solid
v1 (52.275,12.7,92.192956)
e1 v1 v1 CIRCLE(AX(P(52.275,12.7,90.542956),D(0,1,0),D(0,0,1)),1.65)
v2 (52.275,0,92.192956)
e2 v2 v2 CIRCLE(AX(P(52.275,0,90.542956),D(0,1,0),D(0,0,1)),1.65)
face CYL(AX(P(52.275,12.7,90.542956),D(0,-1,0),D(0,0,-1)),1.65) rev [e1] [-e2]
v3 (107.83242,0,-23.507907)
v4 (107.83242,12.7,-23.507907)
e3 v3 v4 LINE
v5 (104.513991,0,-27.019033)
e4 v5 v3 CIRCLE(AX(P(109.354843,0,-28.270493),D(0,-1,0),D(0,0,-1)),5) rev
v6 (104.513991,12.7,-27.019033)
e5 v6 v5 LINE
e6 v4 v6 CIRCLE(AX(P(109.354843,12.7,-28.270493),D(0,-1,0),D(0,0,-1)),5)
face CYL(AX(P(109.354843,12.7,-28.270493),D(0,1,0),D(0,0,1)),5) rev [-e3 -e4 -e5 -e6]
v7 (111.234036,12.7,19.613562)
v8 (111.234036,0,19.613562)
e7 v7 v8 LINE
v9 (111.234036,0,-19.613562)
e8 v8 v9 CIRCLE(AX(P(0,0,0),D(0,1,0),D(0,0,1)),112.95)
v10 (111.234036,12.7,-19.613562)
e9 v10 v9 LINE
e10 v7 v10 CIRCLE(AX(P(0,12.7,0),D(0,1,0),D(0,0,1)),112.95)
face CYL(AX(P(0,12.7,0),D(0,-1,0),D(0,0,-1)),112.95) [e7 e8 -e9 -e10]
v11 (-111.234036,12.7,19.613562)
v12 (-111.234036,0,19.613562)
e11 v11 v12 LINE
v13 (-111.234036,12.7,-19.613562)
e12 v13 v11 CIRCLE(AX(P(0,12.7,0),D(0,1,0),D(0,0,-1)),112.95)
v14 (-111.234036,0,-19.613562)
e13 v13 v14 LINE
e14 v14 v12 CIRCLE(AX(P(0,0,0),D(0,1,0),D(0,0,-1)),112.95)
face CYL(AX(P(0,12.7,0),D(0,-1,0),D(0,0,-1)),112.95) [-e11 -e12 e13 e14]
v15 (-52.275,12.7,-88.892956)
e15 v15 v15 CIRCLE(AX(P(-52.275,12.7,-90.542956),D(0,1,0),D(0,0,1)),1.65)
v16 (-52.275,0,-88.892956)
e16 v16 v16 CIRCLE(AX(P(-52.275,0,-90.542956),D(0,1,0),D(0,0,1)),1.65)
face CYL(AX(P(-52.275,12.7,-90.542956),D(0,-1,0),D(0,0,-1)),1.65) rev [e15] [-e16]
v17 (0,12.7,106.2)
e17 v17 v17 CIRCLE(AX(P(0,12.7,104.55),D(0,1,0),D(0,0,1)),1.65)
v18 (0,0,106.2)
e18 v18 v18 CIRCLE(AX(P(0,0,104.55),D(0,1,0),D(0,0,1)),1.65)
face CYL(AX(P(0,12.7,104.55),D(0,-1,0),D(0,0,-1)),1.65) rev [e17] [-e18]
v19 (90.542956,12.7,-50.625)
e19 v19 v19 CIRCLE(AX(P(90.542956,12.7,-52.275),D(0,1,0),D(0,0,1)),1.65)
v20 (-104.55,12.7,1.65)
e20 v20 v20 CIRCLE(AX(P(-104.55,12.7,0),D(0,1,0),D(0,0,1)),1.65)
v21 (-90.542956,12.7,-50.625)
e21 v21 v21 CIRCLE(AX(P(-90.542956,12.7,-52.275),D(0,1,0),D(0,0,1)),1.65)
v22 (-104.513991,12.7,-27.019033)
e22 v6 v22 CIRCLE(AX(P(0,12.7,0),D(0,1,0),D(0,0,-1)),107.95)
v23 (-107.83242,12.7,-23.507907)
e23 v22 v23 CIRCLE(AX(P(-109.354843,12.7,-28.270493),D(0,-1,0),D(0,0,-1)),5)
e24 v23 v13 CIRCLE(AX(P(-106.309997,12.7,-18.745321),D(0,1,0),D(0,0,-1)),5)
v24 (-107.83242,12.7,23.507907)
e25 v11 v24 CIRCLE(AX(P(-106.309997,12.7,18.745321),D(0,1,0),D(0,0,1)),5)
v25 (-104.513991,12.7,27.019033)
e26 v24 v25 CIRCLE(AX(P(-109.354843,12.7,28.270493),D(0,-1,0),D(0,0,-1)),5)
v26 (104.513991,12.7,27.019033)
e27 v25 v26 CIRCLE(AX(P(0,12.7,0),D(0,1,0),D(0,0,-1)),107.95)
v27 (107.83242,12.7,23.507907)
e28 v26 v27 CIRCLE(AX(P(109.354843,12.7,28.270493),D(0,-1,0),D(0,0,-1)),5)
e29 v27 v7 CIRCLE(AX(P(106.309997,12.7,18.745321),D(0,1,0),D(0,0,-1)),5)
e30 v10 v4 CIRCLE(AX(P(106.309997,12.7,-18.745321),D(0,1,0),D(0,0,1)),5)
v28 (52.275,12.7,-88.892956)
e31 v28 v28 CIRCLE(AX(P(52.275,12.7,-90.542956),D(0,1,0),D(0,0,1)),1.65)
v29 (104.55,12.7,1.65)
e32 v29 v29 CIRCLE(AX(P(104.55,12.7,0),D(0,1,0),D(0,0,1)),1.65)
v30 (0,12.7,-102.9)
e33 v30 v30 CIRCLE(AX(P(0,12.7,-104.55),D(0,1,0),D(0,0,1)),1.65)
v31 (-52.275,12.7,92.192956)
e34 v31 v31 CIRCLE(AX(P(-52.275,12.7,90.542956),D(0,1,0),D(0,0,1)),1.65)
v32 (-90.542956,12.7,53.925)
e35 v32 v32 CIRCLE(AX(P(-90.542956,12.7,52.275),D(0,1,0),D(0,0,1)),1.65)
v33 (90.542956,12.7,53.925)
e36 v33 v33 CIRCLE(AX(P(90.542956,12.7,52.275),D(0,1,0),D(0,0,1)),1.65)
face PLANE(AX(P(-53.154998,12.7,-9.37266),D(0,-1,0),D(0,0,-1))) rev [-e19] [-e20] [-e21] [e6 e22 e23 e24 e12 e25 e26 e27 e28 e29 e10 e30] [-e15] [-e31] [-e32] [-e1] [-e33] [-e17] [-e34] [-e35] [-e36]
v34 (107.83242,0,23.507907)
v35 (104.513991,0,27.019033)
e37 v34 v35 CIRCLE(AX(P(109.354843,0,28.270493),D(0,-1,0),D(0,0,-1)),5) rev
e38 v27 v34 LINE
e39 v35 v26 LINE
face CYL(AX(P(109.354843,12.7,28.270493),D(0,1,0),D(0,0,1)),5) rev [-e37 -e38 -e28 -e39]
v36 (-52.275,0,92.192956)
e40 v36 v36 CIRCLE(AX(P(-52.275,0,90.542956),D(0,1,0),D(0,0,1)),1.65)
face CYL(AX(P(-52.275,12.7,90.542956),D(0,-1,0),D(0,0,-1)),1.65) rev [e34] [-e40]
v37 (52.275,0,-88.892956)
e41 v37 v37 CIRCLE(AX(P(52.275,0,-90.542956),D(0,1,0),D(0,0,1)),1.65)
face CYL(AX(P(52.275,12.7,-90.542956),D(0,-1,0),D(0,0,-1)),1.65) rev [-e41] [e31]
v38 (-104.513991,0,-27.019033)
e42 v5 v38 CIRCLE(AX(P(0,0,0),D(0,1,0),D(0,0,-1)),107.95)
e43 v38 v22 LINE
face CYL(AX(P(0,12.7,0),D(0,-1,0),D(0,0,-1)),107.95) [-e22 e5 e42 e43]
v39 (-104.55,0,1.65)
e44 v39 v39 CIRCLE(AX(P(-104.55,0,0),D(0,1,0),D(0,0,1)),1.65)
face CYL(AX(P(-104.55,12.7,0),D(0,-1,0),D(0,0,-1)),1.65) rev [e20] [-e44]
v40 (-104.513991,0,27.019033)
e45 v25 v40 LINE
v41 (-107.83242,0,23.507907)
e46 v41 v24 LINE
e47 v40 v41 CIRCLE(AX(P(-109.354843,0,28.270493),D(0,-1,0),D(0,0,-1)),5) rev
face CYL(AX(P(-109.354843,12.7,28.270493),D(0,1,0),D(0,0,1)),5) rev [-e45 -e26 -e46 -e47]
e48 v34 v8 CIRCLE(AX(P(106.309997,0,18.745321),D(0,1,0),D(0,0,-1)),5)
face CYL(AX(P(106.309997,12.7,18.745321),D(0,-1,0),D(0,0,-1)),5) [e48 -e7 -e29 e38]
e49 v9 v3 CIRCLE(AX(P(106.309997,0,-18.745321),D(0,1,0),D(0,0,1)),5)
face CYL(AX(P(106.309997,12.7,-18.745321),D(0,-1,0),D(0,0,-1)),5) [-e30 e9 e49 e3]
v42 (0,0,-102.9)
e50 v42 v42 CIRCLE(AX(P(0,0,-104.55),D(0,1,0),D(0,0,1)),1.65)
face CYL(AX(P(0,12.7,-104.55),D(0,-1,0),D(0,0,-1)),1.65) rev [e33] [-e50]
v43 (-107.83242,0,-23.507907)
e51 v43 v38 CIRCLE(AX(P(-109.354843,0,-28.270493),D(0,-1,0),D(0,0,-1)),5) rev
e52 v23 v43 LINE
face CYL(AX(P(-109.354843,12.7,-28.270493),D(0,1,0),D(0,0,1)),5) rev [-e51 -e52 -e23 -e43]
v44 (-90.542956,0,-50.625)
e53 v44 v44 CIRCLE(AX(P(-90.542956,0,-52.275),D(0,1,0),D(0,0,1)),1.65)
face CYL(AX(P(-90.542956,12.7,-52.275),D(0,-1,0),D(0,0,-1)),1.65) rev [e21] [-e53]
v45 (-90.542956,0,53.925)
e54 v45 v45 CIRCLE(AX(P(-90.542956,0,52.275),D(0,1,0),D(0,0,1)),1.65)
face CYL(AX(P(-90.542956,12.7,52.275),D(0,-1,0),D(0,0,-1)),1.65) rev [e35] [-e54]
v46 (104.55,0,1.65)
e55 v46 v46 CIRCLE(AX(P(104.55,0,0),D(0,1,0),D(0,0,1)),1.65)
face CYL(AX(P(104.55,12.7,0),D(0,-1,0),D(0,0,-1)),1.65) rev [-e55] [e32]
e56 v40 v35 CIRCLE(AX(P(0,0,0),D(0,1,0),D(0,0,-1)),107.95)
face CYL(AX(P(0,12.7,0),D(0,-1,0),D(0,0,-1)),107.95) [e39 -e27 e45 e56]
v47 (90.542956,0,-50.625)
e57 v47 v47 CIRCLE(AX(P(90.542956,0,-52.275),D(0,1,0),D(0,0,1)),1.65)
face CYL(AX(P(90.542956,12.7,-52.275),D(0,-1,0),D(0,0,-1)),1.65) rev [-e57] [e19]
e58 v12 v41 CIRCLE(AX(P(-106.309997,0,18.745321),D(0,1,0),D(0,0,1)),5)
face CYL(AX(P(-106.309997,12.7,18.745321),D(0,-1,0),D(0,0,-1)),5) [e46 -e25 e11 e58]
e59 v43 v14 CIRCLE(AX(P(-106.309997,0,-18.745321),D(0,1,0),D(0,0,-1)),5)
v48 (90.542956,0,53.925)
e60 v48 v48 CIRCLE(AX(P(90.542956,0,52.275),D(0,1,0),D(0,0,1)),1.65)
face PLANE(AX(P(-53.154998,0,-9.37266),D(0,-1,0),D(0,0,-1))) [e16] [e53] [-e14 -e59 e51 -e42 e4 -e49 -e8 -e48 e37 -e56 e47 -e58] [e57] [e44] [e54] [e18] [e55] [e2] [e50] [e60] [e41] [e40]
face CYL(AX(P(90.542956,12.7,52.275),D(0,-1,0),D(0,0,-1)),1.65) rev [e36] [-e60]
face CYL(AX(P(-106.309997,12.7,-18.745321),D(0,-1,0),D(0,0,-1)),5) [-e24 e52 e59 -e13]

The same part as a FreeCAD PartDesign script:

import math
import FreeCAD as App
import Part
import Sketcher
from FreeCAD import Vector


def edges_at(feature, points):
    """Names of the edges that pass closest to the given points."""
    edges = feature.Shape.Edges
    near = lambda p: min(range(len(edges)), key=lambda i: edges[i].distToShape(Part.Vertex(*p))[0])
    return sorted({f"Edge{near(p) + 1}" for p in points})

doc = App.newDocument("Part")
body = doc.addObject("PartDesign::Body", "Body")

# Sketch on XZ plane
sketch1 = body.newObject("Sketcher::SketchObject", "Sketch")
sketch1.AttachmentSupport = (doc.getObject("XZ_Plane"), [""])
sketch1.MapMode = "FlatFace"
sketch1.addGeometry(Part.ArcOfCircle(Part.Circle(Vector(0, 0, 0), Vector(0, 0, 1), 113), math.radians(170), math.radians(190)), False)
sketch1.addGeometry(Part.ArcOfCircle(Part.Circle(Vector(-106.3, 18.7, 0), Vector(0, 0, 1), 5), math.radians(79), math.radians(170)), False)
sketch1.addGeometry(Part.ArcOfCircle(Part.Circle(Vector(0, 0, 0), Vector(0, 0, 1), 108), math.radians(13), math.radians(167)), False)
sketch1.addGeometry(Part.ArcOfCircle(Part.Circle(Vector(106.3, 18.7, 0), Vector(0, 0, 1), 5), math.radians(10), math.radians(101)), False)
sketch1.addGeometry(Part.ArcOfCircle(Part.Circle(Vector(0, 0, 0), Vector(0, 0, 1), 113), math.radians(-10), math.radians(10)), False)
sketch1.addGeometry(Part.ArcOfCircle(Part.Circle(Vector(106.3, -18.7, 0), Vector(0, 0, 1), 5), math.radians(-101), math.radians(-10)), False)
sketch1.addGeometry(Part.ArcOfCircle(Part.Circle(Vector(0, 0, 0), Vector(0, 0, 1), 108), math.radians(-167), math.radians(-13)), False)
sketch1.addGeometry(Part.ArcOfCircle(Part.Circle(Vector(-106.3, -18.7, 0), Vector(0, 0, 1), 5), math.radians(-170), math.radians(-79)), False)
sketch1.addGeometry(Part.Circle(Vector(52.3, 90.5, 0), Vector(0, 0, 1), 1.6), False)
sketch1.addGeometry(Part.Circle(Vector(90.5, 52.3, 0), Vector(0, 0, 1), 1.6), False)
sketch1.addGeometry(Part.Circle(Vector(0, 104.5, 0), Vector(0, 0, 1), 1.6), False)
sketch1.addGeometry(Part.Circle(Vector(-52.3, 90.5, 0), Vector(0, 0, 1), 1.6), False)
sketch1.addGeometry(Part.Circle(Vector(-90.5, 52.3, 0), Vector(0, 0, 1), 1.6), False)
sketch1.addGeometry(Part.Circle(Vector(104.5, 0, 0), Vector(0, 0, 1), 1.6), False)
sketch1.addGeometry(Part.Circle(Vector(90.5, -52.3, 0), Vector(0, 0, 1), 1.6), False)
sketch1.addGeometry(Part.Circle(Vector(52.3, -90.5, 0), Vector(0, 0, 1), 1.6), False)
sketch1.addGeometry(Part.Circle(Vector(-104.5, 0, 0), Vector(0, 0, 1), 1.6), False)
sketch1.addGeometry(Part.Circle(Vector(-90.5, -52.3, 0), Vector(0, 0, 1), 1.6), False)
sketch1.addGeometry(Part.Circle(Vector(0, -104.5, 0), Vector(0, 0, 1), 1.6), False)
sketch1.addGeometry(Part.Circle(Vector(-52.3, -90.5, 0), Vector(0, 0, 1), 1.6), False)
sketch1.addConstraint(Sketcher.Constraint("Tangent", 0, 1, 1, 2))
sketch1.addConstraint(Sketcher.Constraint("Coincident", 1, 1, 2, 2))
sketch1.addConstraint(Sketcher.Constraint("Coincident", 2, 1, 3, 2))
sketch1.addConstraint(Sketcher.Constraint("Tangent", 3, 1, 4, 2))
sketch1.addConstraint(Sketcher.Constraint("Tangent", 4, 1, 5, 2))
sketch1.addConstraint(Sketcher.Constraint("Coincident", 5, 1, 6, 2))
sketch1.addConstraint(Sketcher.Constraint("Coincident", 6, 1, 7, 2))
sketch1.addConstraint(Sketcher.Constraint("Tangent", 7, 1, 0, 2))
sketch1.addConstraint(Sketcher.Constraint("Coincident", 0, 3, -1, 1))
sketch1.addConstraint(Sketcher.Constraint("Coincident", 2, 3, -1, 1))
sketch1.addConstraint(Sketcher.Constraint("Coincident", 4, 3, -1, 1))
sketch1.addConstraint(Sketcher.Constraint("Coincident", 6, 3, -1, 1))
sketch1.addConstraint(Sketcher.Constraint("Equal", 1, 3))
sketch1.addConstraint(Sketcher.Constraint("Equal", 0, 4))
sketch1.addConstraint(Sketcher.Constraint("Equal", 3, 5))
sketch1.addConstraint(Sketcher.Constraint("Equal", 2, 6))
sketch1.addConstraint(Sketcher.Constraint("Equal", 5, 7))
sketch1.addConstraint(Sketcher.Constraint("Equal", 8, 9))
sketch1.addConstraint(Sketcher.Constraint("Equal", 9, 10))
sketch1.addConstraint(Sketcher.Constraint("Equal", 10, 11))
sketch1.addConstraint(Sketcher.Constraint("Equal", 11, 12))
sketch1.addConstraint(Sketcher.Constraint("Equal", 12, 13))
sketch1.addConstraint(Sketcher.Constraint("Equal", 13, 14))
sketch1.addConstraint(Sketcher.Constraint("Equal", 14, 15))
sketch1.addConstraint(Sketcher.Constraint("Equal", 15, 16))
sketch1.addConstraint(Sketcher.Constraint("Equal", 16, 17))
sketch1.addConstraint(Sketcher.Constraint("Equal", 17, 18))
sketch1.addConstraint(Sketcher.Constraint("Equal", 18, 19))
sketch1.addConstraint(Sketcher.Constraint("Symmetric", 12, 3, 14, 3, -1, 1))
sketch1.addConstraint(Sketcher.Constraint("Symmetric", 11, 3, 15, 3, -1, 1))
sketch1.addConstraint(Sketcher.Constraint("Symmetric", 13, 3, 16, 3, -1, 1))
sketch1.addConstraint(Sketcher.Constraint("Symmetric", 9, 3, 17, 3, -1, 1))
sketch1.addConstraint(Sketcher.Constraint("Symmetric", 10, 3, 18, 3, -1, 1))
sketch1.addConstraint(Sketcher.Constraint("Symmetric", 8, 3, 19, 3, -1, 1))
sketch1.addConstraint(Sketcher.Constraint("Symmetric", 8, 3, 11, 3, -2))
sketch1.addConstraint(Sketcher.Constraint("Symmetric", 9, 3, 12, 3, -2))
sketch1.addConstraint(Sketcher.Constraint("PointOnObject", 10, 3, -2))
sketch1.addConstraint(Sketcher.Constraint("PointOnObject", 13, 3, -1))
sketch1.addConstraint(Sketcher.Constraint("Horizontal", 1, 3, 3, 3))
sketch1.addConstraint(Sketcher.Constraint("Horizontal", 5, 3, 7, 3))
sketch1.addConstraint(Sketcher.Constraint("Vertical", 3, 3, 5, 3))
sketch1.addConstraint(Sketcher.Constraint("Radius", 1, 5.0))
sketch1.addConstraint(Sketcher.Constraint("Diameter", 8, 3.3))
sketch1.addConstraint(Sketcher.Constraint("Radius", 0, 112.95))
sketch1.addConstraint(Sketcher.Constraint("Radius", 2, 107.95))
sketch1.addConstraint(Sketcher.Constraint("DistanceY", -1, 1, 10, 3, 104.55))
sketch1.addConstraint(Sketcher.Constraint("DistanceX", -1, 1, 13, 3, 104.55))
sketch1.addConstraint(Sketcher.Constraint("DistanceX", 11, 3, 8, 3, 104.55))
sketch1.addConstraint(Sketcher.Constraint("DistanceY", 14, 3, 9, 3, 104.55))
sketch1.addConstraint(Sketcher.Constraint("DistanceY", -1, 1, 1, 3, 18.745321))
sketch1.addConstraint(Sketcher.Constraint("DistanceX", 9, 3, 3, 3, 15.767041))
sketch1.addConstraint(Sketcher.Constraint("DistanceY", -1, 1, 8, 3, 90.542956))
pad1 = body.newObject("PartDesign::Pad", "Pad")
pad1.Profile = sketch1
pad1.Length = 12.7
pad1.Reversed = True
doc.recompute()

fillet = body.newObject("PartDesign::Fillet", "Fillet")
fillet.Base = (pad1, edges_at(pad1, [
    (-105.328, 6.35, -23.648),
    (105.328, 6.35, -23.648),
    (105.328, 6.35, 23.648),
    (-105.328, 6.35, 23.648),
]))
fillet.Radius = 5

doc.recompute()
